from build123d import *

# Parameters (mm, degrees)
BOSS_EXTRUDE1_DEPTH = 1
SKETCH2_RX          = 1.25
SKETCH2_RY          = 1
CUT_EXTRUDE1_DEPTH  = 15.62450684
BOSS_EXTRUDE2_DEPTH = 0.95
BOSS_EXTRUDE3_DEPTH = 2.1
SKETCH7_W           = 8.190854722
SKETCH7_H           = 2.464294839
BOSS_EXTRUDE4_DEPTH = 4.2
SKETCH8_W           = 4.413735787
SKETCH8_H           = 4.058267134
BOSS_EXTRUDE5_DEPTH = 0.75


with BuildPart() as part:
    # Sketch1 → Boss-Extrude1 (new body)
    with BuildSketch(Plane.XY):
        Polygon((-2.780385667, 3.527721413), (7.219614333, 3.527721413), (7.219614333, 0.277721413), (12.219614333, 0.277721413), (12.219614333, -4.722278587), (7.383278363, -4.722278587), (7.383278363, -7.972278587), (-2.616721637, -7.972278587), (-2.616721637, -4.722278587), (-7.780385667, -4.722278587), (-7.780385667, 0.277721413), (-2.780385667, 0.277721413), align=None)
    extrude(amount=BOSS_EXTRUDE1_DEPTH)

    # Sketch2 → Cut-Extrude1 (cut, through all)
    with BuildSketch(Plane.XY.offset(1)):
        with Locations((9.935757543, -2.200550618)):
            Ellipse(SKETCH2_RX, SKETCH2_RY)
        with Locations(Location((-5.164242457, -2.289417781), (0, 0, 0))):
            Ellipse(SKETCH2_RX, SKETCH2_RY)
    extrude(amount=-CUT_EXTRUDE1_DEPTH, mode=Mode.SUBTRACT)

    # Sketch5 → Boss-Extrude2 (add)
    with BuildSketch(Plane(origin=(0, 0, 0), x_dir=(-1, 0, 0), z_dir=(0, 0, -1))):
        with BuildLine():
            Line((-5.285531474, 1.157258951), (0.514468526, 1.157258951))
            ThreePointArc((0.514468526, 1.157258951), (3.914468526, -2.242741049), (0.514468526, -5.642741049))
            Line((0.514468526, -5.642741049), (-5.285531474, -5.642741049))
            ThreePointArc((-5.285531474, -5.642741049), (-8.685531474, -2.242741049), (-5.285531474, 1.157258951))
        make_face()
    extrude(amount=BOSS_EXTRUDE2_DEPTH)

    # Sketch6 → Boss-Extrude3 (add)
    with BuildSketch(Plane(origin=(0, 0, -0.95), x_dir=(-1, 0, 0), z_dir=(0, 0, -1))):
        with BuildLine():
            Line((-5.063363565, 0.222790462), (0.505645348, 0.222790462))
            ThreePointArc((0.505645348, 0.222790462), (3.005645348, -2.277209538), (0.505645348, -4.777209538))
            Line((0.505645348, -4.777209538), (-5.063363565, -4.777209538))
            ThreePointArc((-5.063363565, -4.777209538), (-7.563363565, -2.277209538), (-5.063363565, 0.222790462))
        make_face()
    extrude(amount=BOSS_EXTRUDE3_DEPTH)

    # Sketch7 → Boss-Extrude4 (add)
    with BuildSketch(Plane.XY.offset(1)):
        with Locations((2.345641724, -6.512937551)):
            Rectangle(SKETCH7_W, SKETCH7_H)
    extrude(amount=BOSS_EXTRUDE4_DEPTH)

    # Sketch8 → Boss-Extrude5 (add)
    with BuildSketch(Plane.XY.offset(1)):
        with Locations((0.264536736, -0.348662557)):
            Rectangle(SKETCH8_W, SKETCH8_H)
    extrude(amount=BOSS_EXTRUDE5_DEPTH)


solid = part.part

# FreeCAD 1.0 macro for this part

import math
import FreeCAD as App
import Part
import Sketcher

V = App.Vector
Q = App.Units.Quantity

doc = App.newDocument("Part")
params = doc.addObject("Spreadsheet::Sheet", "Params")
for row, (alias, value) in enumerate([
    ("sketch1_width", "10 mm"),
    ("sketch1_width2", "5 mm"),
    ("sketch1_height", "3.25 mm"),
    ("pad1_length", "1 mm"),
    ("sketch3_radius", "3.4 mm"),
    ("sketch3_width", "5.8 mm"),
    ("pad2_length", "0.95 mm"),
    ("sketch4_radius", "2.5 mm"),
    ("pad3_length", "2.1 mm"),
    ("pad4_length", "4.2 mm"),
    ("pad5_length", "0.75 mm"),
], start=1):
    params.set(f"A{row}", alias)
    params.set(f"B{row}", "=" + value)
    params.setAlias(f"B{row}", alias)

body = doc.addObject("PartDesign::Body", "Body")

sketch1 = body.newObject("Sketcher::SketchObject", "Sketch")
sketch1.AttachmentSupport = (doc.getObject("XY_Plane"), [""])
sketch1.MapMode = "FlatFace"
sketch1.addGeometry([
    Part.LineSegment(V(7.2, 3.5, 0), V(-2.8, 3.5, 0)),
    Part.LineSegment(V(-2.8, 3.5, 0), V(-2.8, 0.3, 0)),
    Part.LineSegment(V(-2.8, 0.3, 0), V(-7.8, 0.3, 0)),
    Part.LineSegment(V(-7.8, 0.3, 0), V(-7.8, -4.7, 0)),
    Part.LineSegment(V(-7.8, -4.7, 0), V(-2.6, -4.7, 0)),
    Part.LineSegment(V(-2.6, -4.7, 0), V(-2.6, -8, 0)),
    Part.LineSegment(V(-2.6, -8, 0), V(7.4, -8, 0)),
    Part.LineSegment(V(7.4, -8, 0), V(7.4, -4.7, 0)),
    Part.LineSegment(V(7.4, -4.7, 0), V(12.2, -4.7, 0)),
    Part.LineSegment(V(12.2, -4.7, 0), V(12.2, 0.3, 0)),
    Part.LineSegment(V(12.2, 0.3, 0), V(7.2, 0.3, 0)),
    Part.LineSegment(V(7.2, 0.3, 0), V(7.2, 3.5, 0)),
], False)
sketch1.addConstraint([
    Sketcher.Constraint("Coincident", 0, 2, 1, 1),
    Sketcher.Constraint("Coincident", 1, 2, 2, 1),
    Sketcher.Constraint("Coincident", 2, 2, 3, 1),
    Sketcher.Constraint("Coincident", 3, 2, 4, 1),
    Sketcher.Constraint("Coincident", 4, 2, 5, 1),
    Sketcher.Constraint("Coincident", 5, 2, 6, 1),
    Sketcher.Constraint("Coincident", 6, 2, 7, 1),
    Sketcher.Constraint("Coincident", 7, 2, 8, 1),
    Sketcher.Constraint("Coincident", 8, 2, 9, 1),
    Sketcher.Constraint("Coincident", 9, 2, 10, 1),
    Sketcher.Constraint("Coincident", 10, 2, 11, 1),
    Sketcher.Constraint("Coincident", 11, 2, 0, 1),
    Sketcher.Constraint("Horizontal", 0),
    Sketcher.Constraint("Vertical", 1),
    Sketcher.Constraint("Horizontal", 2),
    Sketcher.Constraint("Vertical", 3),
    Sketcher.Constraint("Horizontal", 4),
    Sketcher.Constraint("Vertical", 5),
    Sketcher.Constraint("Horizontal", 6),
    Sketcher.Constraint("Vertical", 7),
    Sketcher.Constraint("Horizontal", 8),
    Sketcher.Constraint("Vertical", 9),
    Sketcher.Constraint("Horizontal", 10),
    Sketcher.Constraint("Vertical", 11),
    Sketcher.Constraint("Horizontal", 4, 2, 7, 2),
    Sketcher.Constraint("Horizontal", 2, 2, 9, 2),
    Sketcher.Constraint("Equal", 0, 6),
    Sketcher.Constraint("Equal", 2, 10),
    Sketcher.Constraint("Equal", 10, 3),
    Sketcher.Constraint("Equal", 1, 5),
    Sketcher.Constraint("DistanceX", 0, 2, 0, 1, Q("10 mm")),
    Sketcher.Constraint("DistanceX", 2, 2, 2, 1, Q("5 mm")),
    Sketcher.Constraint("DistanceY", 1, 2, 1, 1, Q("3.25 mm")),
    Sketcher.Constraint("DistanceX", 4, 1, 4, 2, Q("5.163664 mm")),
    Sketcher.Constraint("DistanceY", -1, 1, 0, 2, Q("3.527721 mm")),
    Sketcher.Constraint("DistanceX", 4, 2, -1, 1, Q("2.616722 mm")),
])
sketch1.setExpression("Constraints[30]", "Params.sketch1_width")
sketch1.setExpression("Constraints[31]", "Params.sketch1_width2")
sketch1.setExpression("Constraints[32]", "Params.sketch1_height")
pad1 = body.newObject("PartDesign::Pad", "Pad")
pad1.Profile = sketch1
pad1.setExpression("Length", "Params.pad1_length")

sketch2 = body.newObject("Sketcher::SketchObject", "Sketch001")
sketch2.AttachmentSupport = (doc.getObject("XY_Plane"), [""])
sketch2.MapMode = "FlatFace"
sketch2.AttachmentOffset = App.Placement(V(0, 0, 1), App.Rotation())
sketch2.addGeometry([
    Part.Ellipse(V(11.185758, -2.200551, 0), V(9.935758, -1.200551, 0), V(9.935758, -2.200551, 0)),
    Part.Ellipse(V(-3.914242, -2.289418, 0), V(-5.164242, -1.289418, 0), V(-5.164242, -2.289418, 0)),
], False)
sketch2.addConstraint([
    Sketcher.Constraint("Block", 0),
    Sketcher.Constraint("Block", 1),
])
pocket1 = body.newObject("PartDesign::Pocket", "Pocket")
pocket1.Profile = sketch2
pocket1.Type = "ThroughAll"

sketch3 = body.newObject("Sketcher::SketchObject", "Sketch002")
sketch3.AttachmentSupport = (doc.getObject("XY_Plane"), [""])
sketch3.MapMode = "FlatFace"
sketch3.addGeometry([
    Part.LineSegment(V(-0.5, 1.2, 0), V(5.3, 1.2, 0)),
    Part.ArcOfCircle(Part.Circle(V(5.3, -2.2, 0), V(0, 0, 1), 3.4), math.radians(-90), math.radians(90)),
    Part.LineSegment(V(5.3, -5.6, 0), V(-0.5, -5.6, 0)),
    Part.ArcOfCircle(Part.Circle(V(-0.5, -2.2, 0), V(0, 0, 1), 3.4), math.radians(90), math.radians(270)),
], False)
sketch3.addConstraint([
    Sketcher.Constraint("Tangent", 0, 2, 1, 2),
    Sketcher.Constraint("Tangent", 1, 1, 2, 1),
    Sketcher.Constraint("Tangent", 2, 2, 3, 2),
    Sketcher.Constraint("Tangent", 3, 1, 0, 1),
    Sketcher.Constraint("Horizontal", 0),
    Sketcher.Constraint("Horizontal", 2),
    Sketcher.Constraint("Radius", 1, Q("3.4 mm")),
    Sketcher.Constraint("DistanceX", 0, 1, 0, 2, Q("5.8 mm")),
    Sketcher.Constraint("DistanceX", -1, 1, 1, 3, Q("5.285531 mm")),
    Sketcher.Constraint("DistanceY", 1, 3, -1, 1, Q("2.242741 mm")),
])
sketch3.setExpression("Constraints[6]", "Params.sketch3_radius")
sketch3.setExpression("Constraints[7]", "Params.sketch3_width")
pad2 = body.newObject("PartDesign::Pad", "Pad001")
pad2.Profile = sketch3
pad2.setExpression("Length", "Params.pad2_length")
pad2.Reversed = True

sketch4 = body.newObject("Sketcher::SketchObject", "Sketch003")
sketch4.AttachmentSupport = (doc.getObject("XY_Plane"), [""])
sketch4.MapMode = "FlatFace"
sketch4.AttachmentOffset = App.Placement(V(0, 0, -0.95), App.Rotation())
sketch4.addGeometry([
    Part.LineSegment(V(-0.5, 0.2, 0), V(5.1, 0.2, 0)),
    Part.ArcOfCircle(Part.Circle(V(5.1, -2.3, 0), V(0, 0, 1), 2.5), math.radians(-90), math.radians(90)),
    Part.LineSegment(V(5.1, -4.8, 0), V(-0.5, -4.8, 0)),
    Part.ArcOfCircle(Part.Circle(V(-0.5, -2.3, 0), V(0, 0, 1), 2.5), math.radians(90), math.radians(270)),
], False)
sketch4.addConstraint([
    Sketcher.Constraint("Tangent", 0, 2, 1, 2),
    Sketcher.Constraint("Tangent", 1, 1, 2, 1),
    Sketcher.Constraint("Tangent", 2, 2, 3, 2),
    Sketcher.Constraint("Tangent", 3, 1, 0, 1),
    Sketcher.Constraint("Horizontal", 0),
    Sketcher.Constraint("Horizontal", 2),
    Sketcher.Constraint("Radius", 1, Q("2.5 mm")),
    Sketcher.Constraint("DistanceX", 0, 1, 0, 2, Q("5.569009 mm")),
    Sketcher.Constraint("DistanceY", 1, 3, -1, 1, Q("2.27721 mm")),
    Sketcher.Constraint("DistanceX", -1, 1, 1, 3, Q("5.063364 mm")),
])
sketch4.setExpression("Constraints[6]", "Params.sketch4_radius")
pad3 = body.newObject("PartDesign::Pad", "Pad002")
pad3.Profile = sketch4
pad3.setExpression("Length", "Params.pad3_length")
pad3.Reversed = True

sketch5 = body.newObject("Sketcher::SketchObject", "Sketch004")
sketch5.AttachmentSupport = (doc.getObject("XY_Plane"), [""])
sketch5.MapMode = "FlatFace"
sketch5.AttachmentOffset = App.Placement(V(0, 0, 1), App.Rotation())
sketch5.addGeometry([
    Part.LineSegment(V(-1.7, -5.3, 0), V(-1.7, -7.7, 0)),
    Part.LineSegment(V(-1.7, -7.7, 0), V(6.4, -7.7, 0)),
    Part.LineSegment(V(6.4, -7.7, 0), V(6.4, -5.3, 0)),
    Part.LineSegment(V(6.4, -5.3, 0), V(-1.7, -5.3, 0)),
], False)
sketch5.addConstraint([
    Sketcher.Constraint("Coincident", 0, 2, 1, 1),
    Sketcher.Constraint("Coincident", 1, 2, 2, 1),
    Sketcher.Constraint("Coincident", 2, 2, 3, 1),
    Sketcher.Constraint("Coincident", 3, 2, 0, 1),
    Sketcher.Constraint("Vertical", 0),
    Sketcher.Constraint("Horizontal", 1),
    Sketcher.Constraint("Vertical", 2),
    Sketcher.Constraint("Horizontal", 3),
    Sketcher.Constraint("DistanceX", 1, 1, 1, 2, Q("8.190855 mm")),
    Sketcher.Constraint("DistanceY", 0, 2, 0, 1, Q("2.464295 mm")),
    Sketcher.Constraint("DistanceX", -1, 1, 1, 2, Q("6.441069 mm")),
    Sketcher.Constraint("DistanceY", 2, 2, -1, 1, Q("5.28079 mm")),
])
pad4 = body.newObject("PartDesign::Pad", "Pad003")
pad4.Profile = sketch5
pad4.setExpression("Length", "Params.pad4_length")

sketch6 = body.newObject("Sketcher::SketchObject", "Sketch005")
sketch6.AttachmentSupport = (doc.getObject("XY_Plane"), [""])
sketch6.MapMode = "FlatFace"
sketch6.AttachmentOffset = App.Placement(V(0, 0, 1), App.Rotation())
sketch6.addGeometry([
    Part.LineSegment(V(-1.9, 1.7, 0), V(-1.9, -2.4, 0)),
    Part.LineSegment(V(-1.9, -2.4, 0), V(2.5, -2.4, 0)),
    Part.LineSegment(V(2.5, -2.4, 0), V(2.5, 1.7, 0)),
    Part.LineSegment(V(2.5, 1.7, 0), V(-1.9, 1.7, 0)),
], False)
sketch6.addConstraint([
    Sketcher.Constraint("Coincident", 0, 2, 1, 1),
    Sketcher.Constraint("Coincident", 1, 2, 2, 1),
    Sketcher.Constraint("Coincident", 2, 2, 3, 1),
    Sketcher.Constraint("Coincident", 3, 2, 0, 1),
    Sketcher.Constraint("Vertical", 0),
    Sketcher.Constraint("Horizontal", 1),
    Sketcher.Constraint("Vertical", 2),
    Sketcher.Constraint("Horizontal", 3),
    Sketcher.Constraint("DistanceX", 1, 1, 1, 2, Q("4.413736 mm")),
    Sketcher.Constraint("DistanceY", 0, 2, 0, 1, Q("4.058267 mm")),
    Sketcher.Constraint("DistanceX", 0, 2, -1, 1, Q("1.942331 mm")),
    Sketcher.Constraint("DistanceY", -1, 1, 2, 2, Q("1.680471 mm")),
])
pad5 = body.newObject("PartDesign::Pad", "Pad004")
pad5.Profile = sketch6
pad5.setExpression("Length", "Params.pad5_length")

doc.recompute()
